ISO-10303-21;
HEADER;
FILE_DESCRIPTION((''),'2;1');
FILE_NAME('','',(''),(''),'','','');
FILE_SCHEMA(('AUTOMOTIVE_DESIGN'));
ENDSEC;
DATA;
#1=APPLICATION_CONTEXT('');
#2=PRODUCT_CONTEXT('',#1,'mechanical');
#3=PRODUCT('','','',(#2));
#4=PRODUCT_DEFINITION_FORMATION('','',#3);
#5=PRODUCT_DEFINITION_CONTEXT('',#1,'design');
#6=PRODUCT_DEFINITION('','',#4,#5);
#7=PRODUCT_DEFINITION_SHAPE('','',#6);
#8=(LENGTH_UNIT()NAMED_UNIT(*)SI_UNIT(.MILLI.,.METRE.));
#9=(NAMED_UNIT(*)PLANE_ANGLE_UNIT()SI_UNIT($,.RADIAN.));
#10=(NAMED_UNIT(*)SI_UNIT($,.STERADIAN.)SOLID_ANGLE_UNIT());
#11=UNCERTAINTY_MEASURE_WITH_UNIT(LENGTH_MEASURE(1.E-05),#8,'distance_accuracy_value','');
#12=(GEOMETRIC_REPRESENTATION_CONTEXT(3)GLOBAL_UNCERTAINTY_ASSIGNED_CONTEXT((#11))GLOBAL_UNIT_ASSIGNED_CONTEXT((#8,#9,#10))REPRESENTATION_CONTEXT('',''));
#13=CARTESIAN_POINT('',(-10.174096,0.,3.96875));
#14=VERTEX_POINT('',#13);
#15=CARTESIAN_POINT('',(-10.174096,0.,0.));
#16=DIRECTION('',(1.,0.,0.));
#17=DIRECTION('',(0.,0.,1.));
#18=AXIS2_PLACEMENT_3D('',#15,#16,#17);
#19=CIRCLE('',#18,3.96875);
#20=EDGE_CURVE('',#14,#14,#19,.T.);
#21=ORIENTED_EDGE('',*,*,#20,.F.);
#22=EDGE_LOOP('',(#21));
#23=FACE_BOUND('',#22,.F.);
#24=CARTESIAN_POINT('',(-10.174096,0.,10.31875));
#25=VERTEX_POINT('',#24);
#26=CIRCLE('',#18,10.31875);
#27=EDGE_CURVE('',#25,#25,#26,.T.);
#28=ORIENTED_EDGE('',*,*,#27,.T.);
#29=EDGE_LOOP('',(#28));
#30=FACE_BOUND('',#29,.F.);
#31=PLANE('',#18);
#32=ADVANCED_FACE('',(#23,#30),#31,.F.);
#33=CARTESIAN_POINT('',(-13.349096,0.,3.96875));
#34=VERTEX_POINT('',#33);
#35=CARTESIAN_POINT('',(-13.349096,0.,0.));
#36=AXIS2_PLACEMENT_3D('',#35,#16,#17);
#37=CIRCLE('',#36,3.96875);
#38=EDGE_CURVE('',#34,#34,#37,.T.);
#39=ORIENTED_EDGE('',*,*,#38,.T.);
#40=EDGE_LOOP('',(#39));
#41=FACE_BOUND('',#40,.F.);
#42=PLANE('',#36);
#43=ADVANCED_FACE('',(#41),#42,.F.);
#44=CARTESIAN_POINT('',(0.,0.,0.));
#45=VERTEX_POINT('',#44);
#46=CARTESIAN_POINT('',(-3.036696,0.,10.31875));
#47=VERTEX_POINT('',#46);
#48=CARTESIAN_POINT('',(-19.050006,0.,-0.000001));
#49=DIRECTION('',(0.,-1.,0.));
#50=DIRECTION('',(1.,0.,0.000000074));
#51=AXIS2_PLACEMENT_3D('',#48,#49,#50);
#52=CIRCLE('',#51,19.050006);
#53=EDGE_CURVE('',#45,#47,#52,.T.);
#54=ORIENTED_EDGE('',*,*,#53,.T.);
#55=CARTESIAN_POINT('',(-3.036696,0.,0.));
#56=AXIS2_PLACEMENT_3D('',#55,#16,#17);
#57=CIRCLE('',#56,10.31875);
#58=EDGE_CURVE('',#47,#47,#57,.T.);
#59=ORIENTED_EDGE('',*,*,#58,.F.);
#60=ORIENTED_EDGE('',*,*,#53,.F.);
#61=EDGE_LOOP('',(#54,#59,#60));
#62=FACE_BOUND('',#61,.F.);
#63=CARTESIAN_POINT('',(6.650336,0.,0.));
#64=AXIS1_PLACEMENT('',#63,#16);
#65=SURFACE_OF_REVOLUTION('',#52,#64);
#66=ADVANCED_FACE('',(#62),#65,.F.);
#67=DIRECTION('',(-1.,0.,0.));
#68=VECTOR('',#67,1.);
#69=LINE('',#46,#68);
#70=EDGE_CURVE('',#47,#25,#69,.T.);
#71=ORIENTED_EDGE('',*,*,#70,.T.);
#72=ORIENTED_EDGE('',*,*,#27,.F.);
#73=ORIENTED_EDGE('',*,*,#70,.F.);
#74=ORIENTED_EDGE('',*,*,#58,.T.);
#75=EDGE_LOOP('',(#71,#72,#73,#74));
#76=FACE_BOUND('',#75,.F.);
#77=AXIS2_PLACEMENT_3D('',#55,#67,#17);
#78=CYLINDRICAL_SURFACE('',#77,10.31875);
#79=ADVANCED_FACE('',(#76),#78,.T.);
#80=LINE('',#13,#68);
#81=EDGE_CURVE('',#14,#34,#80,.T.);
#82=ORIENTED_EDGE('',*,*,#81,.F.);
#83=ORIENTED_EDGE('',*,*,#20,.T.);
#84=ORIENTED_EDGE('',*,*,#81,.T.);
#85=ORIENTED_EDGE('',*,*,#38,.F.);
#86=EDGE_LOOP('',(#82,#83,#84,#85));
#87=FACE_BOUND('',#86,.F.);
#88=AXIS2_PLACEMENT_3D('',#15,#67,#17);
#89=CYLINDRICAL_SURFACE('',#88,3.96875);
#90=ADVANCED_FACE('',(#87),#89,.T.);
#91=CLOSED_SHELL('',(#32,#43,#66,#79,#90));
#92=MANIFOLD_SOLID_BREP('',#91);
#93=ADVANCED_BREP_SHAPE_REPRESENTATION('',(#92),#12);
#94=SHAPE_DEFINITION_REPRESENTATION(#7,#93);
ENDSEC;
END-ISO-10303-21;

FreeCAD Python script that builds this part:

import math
import FreeCAD as App
import Part
import Sketcher
from FreeCAD import Vector
Q = App.Units.Quantity

doc = App.newDocument("Part")
params = doc.addObject("Spreadsheet::Sheet", "Params")
for row, (alias, value) in enumerate([
    ("sketch1_height", "0.25 in"),
    ("sketch1_width", "0.281 in"),
    ("sketch1_width2", "0.125 in"),
    ("sketch1_height2", "0.15625 in"),
    ("revolution_angle", "360 deg"),
], start=1):
    params.set(f"A{row}", alias)
    params.set(f"B{row}", "=" + value)
    params.setAlias(f"B{row}", alias)

body = doc.addObject("PartDesign::Body", "Body")

sketch1 = body.newObject("Sketcher::SketchObject", "Sketch")
sketch1.AttachmentSupport = (doc.getObject("XZ_Plane"), [""])
sketch1.MapMode = "FlatFace"
sketch1.addGeometry([
    Part.LineSegment(Vector(-13.3, 0, 0), Vector(0, 0, 0)),
    Part.ArcOfCircle(Part.Circle(Vector(-19.1, 0, 0), Vector(0, 0, 1), 19.1), math.radians(0), math.radians(33)),
    Part.LineSegment(Vector(-3, 10.3, 0), Vector(-10.2, 10.3, 0)),
    Part.LineSegment(Vector(-10.2, 10.3, 0), Vector(-10.2, 4, 0)),
    Part.LineSegment(Vector(-10.2, 4, 0), Vector(-13.3, 4, 0)),
    Part.LineSegment(Vector(-13.3, 4, 0), Vector(-13.3, 0, 0)),
], False)
sketch1.addConstraint([
    Sketcher.Constraint("Coincident", 0, 2, 1, 1),
    Sketcher.Constraint("Coincident", 1, 2, 2, 1),
    Sketcher.Constraint("Coincident", 2, 2, 3, 1),
    Sketcher.Constraint("Coincident", 3, 2, 4, 1),
    Sketcher.Constraint("Coincident", 4, 2, 5, 1),
    Sketcher.Constraint("Coincident", 5, 2, 0, 1),
    Sketcher.Constraint("Horizontal", 0),
    Sketcher.Constraint("Horizontal", 2),
    Sketcher.Constraint("Vertical", 3),
    Sketcher.Constraint("Horizontal", 4),
    Sketcher.Constraint("Vertical", 5),
    Sketcher.Constraint("Coincident", 0, 2, -1, 1),
    Sketcher.Constraint("PointOnObject", 1, 3, -1),
    Sketcher.Constraint("DistanceY", 3, 2, 3, 1, Q("0.25 in")),
    Sketcher.Constraint("DistanceX", 2, 2, 2, 1, Q("0.281 in")),
    Sketcher.Constraint("DistanceX", 4, 2, 4, 1, Q("0.125 in")),
    Sketcher.Constraint("DistanceY", 5, 2, 5, 1, Q("0.15625 in")),
    Sketcher.Constraint("Radius", 1, 19.050006),
])
sketch1.setExpression("Constraints[13]", "Params.sketch1_height")
sketch1.setExpression("Constraints[14]", "Params.sketch1_width")
sketch1.setExpression("Constraints[15]", "Params.sketch1_width2")
sketch1.setExpression("Constraints[16]", "Params.sketch1_height2")
revolution = body.newObject("PartDesign::Revolution", "Revolution")
revolution.Profile = sketch1
revolution.ReferenceAxis = (sketch1, ["H_Axis"])
revolution.setExpression("Angle", "Params.revolution_angle")

doc.recompute()
